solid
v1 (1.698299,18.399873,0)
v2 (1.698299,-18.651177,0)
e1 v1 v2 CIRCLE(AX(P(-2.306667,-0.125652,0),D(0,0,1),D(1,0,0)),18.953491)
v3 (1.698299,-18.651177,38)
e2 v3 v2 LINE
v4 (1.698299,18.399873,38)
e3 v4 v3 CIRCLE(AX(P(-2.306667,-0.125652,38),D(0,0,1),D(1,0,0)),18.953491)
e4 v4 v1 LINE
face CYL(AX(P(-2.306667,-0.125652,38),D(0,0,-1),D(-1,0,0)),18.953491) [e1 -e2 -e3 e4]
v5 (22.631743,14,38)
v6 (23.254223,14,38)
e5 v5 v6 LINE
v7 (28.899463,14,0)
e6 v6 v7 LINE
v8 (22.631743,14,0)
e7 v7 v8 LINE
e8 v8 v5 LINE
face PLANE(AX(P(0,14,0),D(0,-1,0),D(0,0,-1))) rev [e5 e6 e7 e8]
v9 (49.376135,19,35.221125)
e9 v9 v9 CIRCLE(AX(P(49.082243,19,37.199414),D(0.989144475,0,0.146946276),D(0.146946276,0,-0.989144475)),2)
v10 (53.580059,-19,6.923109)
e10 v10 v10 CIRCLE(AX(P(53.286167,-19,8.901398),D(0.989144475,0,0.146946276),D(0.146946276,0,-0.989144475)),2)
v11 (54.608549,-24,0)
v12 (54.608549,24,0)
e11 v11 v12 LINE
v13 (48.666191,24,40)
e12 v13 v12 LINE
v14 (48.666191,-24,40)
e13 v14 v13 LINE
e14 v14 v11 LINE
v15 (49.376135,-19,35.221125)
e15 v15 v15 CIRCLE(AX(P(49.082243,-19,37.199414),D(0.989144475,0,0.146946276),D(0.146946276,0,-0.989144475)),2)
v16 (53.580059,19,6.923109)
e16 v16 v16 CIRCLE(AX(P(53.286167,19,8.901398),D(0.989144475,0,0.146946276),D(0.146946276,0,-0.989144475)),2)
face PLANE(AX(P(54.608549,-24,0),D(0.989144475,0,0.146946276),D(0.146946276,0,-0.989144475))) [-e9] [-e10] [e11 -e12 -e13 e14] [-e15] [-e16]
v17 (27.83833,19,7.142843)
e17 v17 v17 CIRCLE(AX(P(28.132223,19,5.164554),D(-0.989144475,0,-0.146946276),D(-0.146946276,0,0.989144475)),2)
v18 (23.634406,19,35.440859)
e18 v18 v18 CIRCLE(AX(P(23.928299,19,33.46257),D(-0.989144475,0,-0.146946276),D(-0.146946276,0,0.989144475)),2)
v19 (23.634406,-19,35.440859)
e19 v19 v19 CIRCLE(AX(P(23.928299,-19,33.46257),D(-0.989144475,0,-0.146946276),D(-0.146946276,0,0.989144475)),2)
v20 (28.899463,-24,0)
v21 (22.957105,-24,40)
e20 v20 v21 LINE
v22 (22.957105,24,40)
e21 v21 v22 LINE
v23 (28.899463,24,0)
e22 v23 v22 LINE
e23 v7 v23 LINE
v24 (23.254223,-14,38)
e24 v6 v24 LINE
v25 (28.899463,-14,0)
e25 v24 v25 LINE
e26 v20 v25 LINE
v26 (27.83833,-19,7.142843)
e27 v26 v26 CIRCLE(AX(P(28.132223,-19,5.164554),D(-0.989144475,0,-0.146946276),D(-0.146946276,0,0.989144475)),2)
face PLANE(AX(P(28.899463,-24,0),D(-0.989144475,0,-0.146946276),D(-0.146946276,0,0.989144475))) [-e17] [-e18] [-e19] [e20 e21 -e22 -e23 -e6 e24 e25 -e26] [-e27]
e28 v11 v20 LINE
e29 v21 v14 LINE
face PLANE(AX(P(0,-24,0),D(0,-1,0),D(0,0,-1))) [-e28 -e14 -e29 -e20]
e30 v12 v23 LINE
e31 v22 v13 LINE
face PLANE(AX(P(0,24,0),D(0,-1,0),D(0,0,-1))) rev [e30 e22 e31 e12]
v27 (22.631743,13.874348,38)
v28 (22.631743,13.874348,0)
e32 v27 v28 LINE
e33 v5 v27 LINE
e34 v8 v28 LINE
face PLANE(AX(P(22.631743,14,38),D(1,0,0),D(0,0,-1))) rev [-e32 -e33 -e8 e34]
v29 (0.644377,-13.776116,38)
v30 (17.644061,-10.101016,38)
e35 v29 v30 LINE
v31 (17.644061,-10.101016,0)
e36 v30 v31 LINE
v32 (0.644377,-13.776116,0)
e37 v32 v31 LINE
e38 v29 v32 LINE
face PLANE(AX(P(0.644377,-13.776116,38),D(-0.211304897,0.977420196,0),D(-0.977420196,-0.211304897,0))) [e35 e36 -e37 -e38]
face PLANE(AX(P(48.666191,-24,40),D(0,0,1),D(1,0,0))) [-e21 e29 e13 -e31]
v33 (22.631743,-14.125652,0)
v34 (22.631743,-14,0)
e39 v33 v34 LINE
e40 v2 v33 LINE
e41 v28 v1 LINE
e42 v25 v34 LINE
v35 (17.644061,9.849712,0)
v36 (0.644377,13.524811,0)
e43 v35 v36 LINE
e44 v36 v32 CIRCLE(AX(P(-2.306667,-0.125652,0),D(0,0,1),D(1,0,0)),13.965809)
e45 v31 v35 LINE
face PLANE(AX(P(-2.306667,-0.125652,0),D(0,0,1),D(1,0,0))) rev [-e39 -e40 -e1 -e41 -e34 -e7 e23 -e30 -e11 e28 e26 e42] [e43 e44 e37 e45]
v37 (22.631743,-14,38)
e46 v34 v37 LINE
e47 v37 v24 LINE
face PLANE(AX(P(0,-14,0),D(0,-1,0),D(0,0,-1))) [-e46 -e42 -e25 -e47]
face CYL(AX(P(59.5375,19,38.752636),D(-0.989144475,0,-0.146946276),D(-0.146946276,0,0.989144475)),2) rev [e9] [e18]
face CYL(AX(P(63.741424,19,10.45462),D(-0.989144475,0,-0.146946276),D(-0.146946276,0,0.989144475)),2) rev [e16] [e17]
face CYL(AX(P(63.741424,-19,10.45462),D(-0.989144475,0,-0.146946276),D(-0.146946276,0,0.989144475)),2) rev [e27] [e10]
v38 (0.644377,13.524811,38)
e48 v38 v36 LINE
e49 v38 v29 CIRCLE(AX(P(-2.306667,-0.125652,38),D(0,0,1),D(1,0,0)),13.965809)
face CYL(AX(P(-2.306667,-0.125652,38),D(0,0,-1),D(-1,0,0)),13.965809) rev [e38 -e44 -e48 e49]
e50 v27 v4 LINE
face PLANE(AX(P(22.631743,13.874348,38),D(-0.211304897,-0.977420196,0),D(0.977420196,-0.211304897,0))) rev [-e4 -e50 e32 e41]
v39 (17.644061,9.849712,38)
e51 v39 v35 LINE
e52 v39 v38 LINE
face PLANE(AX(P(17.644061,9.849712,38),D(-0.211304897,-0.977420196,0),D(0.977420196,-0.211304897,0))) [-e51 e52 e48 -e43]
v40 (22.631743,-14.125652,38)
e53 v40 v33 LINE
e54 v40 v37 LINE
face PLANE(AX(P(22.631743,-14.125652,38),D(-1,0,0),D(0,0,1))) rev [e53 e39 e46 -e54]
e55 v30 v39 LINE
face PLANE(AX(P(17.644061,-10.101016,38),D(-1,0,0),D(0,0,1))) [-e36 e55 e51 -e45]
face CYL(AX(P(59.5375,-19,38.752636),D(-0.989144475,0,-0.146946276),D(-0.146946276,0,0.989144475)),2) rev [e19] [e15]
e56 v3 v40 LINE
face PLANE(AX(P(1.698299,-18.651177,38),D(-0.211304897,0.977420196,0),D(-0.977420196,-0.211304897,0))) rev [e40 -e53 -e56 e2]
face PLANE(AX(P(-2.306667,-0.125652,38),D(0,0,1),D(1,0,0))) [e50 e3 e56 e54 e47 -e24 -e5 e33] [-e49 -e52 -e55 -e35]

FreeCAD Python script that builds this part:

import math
import FreeCAD as App
import Part
import Sketcher

V = App.Vector
Q = App.Units.Quantity


def add_polygon(sketch, points):
    """Adds a closed chain of lines whose ends are joined by coincident constraints."""
    first, n = sketch.GeometryCount, len(points)
    for a, b in zip(points, points[1:] + points[:1]):
        sketch.addGeometry(Part.LineSegment(App.Vector(*a, 0), App.Vector(*b, 0)), False)
    for i in range(n):
        sketch.addConstraint(Sketcher.Constraint("Coincident", first + i, 2, first + (i + 1) % n, 1))

doc = App.newDocument("Part")
body = doc.addObject("PartDesign::Body", "Body")

sketch1 = body.newObject("Sketcher::SketchObject", "Sketch")
sketch1.AttachmentSupport = (doc.getObject("XY_Plane"), [""])
sketch1.MapMode = "FlatFace"
sketch1.addGeometry(Part.LineSegment(V(22.6, -14.1, 0), V(22.6, 13.9, 0)), False)
sketch1.addGeometry(Part.LineSegment(V(22.6, 13.9, 0), V(1.7, 18.4, 0)), False)
sketch1.addGeometry(Part.ArcOfCircle(Part.Circle(V(-2.3, -0.1, 0), V(0, 0, 1), 19), math.radians(77.8), math.radians(90)), False)
sketch1.addGeometry(Part.ArcOfCircle(Part.Circle(V(-2.3, -0.1, 0), V(0, 0, 1), 19), math.radians(90), math.radians(270)), False)
sketch1.addGeometry(Part.ArcOfCircle(Part.Circle(V(-2.3, -0.1, 0), V(0, 0, 1), 19), math.radians(-90), math.radians(-77.8)), False)
sketch1.addGeometry(Part.LineSegment(V(1.7, -18.7, 0), V(22.6, -14.1, 0)), False)
sketch1.addGeometry(Part.LineSegment(V(17.6, 9.8, 0), V(17.6, -10.1, 0)), False)
sketch1.addGeometry(Part.LineSegment(V(17.6, -10.1, 0), V(0.6, -13.8, 0)), False)
sketch1.addGeometry(Part.ArcOfCircle(Part.Circle(V(-2.3, -0.1, 0), V(0, 0, 1), 14), math.radians(-90), math.radians(-77.8)), False)
sketch1.addGeometry(Part.ArcOfCircle(Part.Circle(V(-2.3, -0.1, 0), V(0, 0, 1), 14), math.radians(90), math.radians(270)), False)
sketch1.addGeometry(Part.ArcOfCircle(Part.Circle(V(-2.3, -0.1, 0), V(0, 0, 1), 14), math.radians(77.8), math.radians(90)), False)
sketch1.addGeometry(Part.LineSegment(V(0.6, 13.5, 0), V(17.6, 9.8, 0)), False)
sketch1.addConstraint(Sketcher.Constraint("Coincident", 0, 2, 1, 1))
sketch1.addConstraint(Sketcher.Constraint("Tangent", 1, 2, 2, 1))
sketch1.addConstraint(Sketcher.Constraint("Tangent", 2, 2, 3, 1))
sketch1.addConstraint(Sketcher.Constraint("Tangent", 3, 2, 4, 1))
sketch1.addConstraint(Sketcher.Constraint("Tangent", 4, 2, 5, 1))
sketch1.addConstraint(Sketcher.Constraint("Coincident", 5, 2, 0, 1))
sketch1.addConstraint(Sketcher.Constraint("Coincident", 6, 2, 7, 1))
sketch1.addConstraint(Sketcher.Constraint("Tangent", 7, 2, 8, 2))
sketch1.addConstraint(Sketcher.Constraint("Tangent", 8, 1, 9, 2))
sketch1.addConstraint(Sketcher.Constraint("Tangent", 9, 1, 10, 2))
sketch1.addConstraint(Sketcher.Constraint("Tangent", 10, 1, 11, 1))
sketch1.addConstraint(Sketcher.Constraint("Coincident", 11, 2, 6, 1))
sketch1.addConstraint(Sketcher.Constraint("Vertical", 0))
sketch1.addConstraint(Sketcher.Constraint("Vertical", 6))
sketch1.addConstraint(Sketcher.Constraint("Coincident", 8, 3, 2, 3))
sketch1.addConstraint(Sketcher.Constraint("Equal", 2, 3))
sketch1.addConstraint(Sketcher.Constraint("Equal", 3, 4))
sketch1.addConstraint(Sketcher.Constraint("Equal", 8, 9))
sketch1.addConstraint(Sketcher.Constraint("Equal", 9, 10))
sketch1.addConstraint(Sketcher.Constraint("Parallel", 5, 7))
sketch1.addConstraint(Sketcher.Constraint("Parallel", 1, 11))
sketch1.addConstraint(Sketcher.Constraint("Vertical", 10, 3, 2, 2))
sketch1.addConstraint(Sketcher.Constraint("Vertical", 2, 2, 3, 2))
sketch1.addConstraint(Sketcher.Constraint("Vertical", 1, 2, 4, 2))
sketch1.addConstraint(Sketcher.Constraint("Vertical", 3, 2, 8, 1))
sketch1.addConstraint(Sketcher.Constraint("Vertical", 8, 1, 9, 1))
sketch1.addConstraint(Sketcher.Constraint("DistanceY", 0, 1, 0, 2, Q("28 mm")))
sketch1.addConstraint(Sketcher.Constraint("Radius", 2, Q("18.953491 mm")))
sketch1.addConstraint(Sketcher.Constraint("Radius", 8, Q("13.965809 mm")))
sketch1.addConstraint(Sketcher.Constraint("Distance", 7, Q("17.392401 mm")))
sketch1.addConstraint(Sketcher.Constraint("DistanceY", 6, 2, 6, 1, Q("19.950728 mm")))
sketch1.addConstraint(Sketcher.Constraint("DistanceX", -1, 1, 1, 2, Q("1.698299 mm")))
sketch1.addConstraint(Sketcher.Constraint("DistanceY", -1, 1, 2, 2, Q("18.827839 mm")))
pad1 = body.newObject("PartDesign::Pad", "Pad")
pad1.Profile = sketch1
pad1.Length = 38

sketch2 = body.newObject("Sketcher::SketchObject", "Sketch001")
sketch2.AttachmentSupport = (doc.getObject("XZ_Plane"), [""])
sketch2.MapMode = "FlatFace"
add_polygon(sketch2, [(23, 0), (23, 38), (43, 38), (48, 0)])
sketch2.addConstraint(Sketcher.Constraint("Vertical", 0))
sketch2.addConstraint(Sketcher.Constraint("Horizontal", 1))
sketch2.addConstraint(Sketcher.Constraint("Horizontal", 3))
sketch2.addConstraint(Sketcher.Constraint("PointOnObject", 2, 2, -1))
sketch2.addConstraint(Sketcher.Constraint("DistanceX", 1, 1, 1, 2, Q("20 mm")))
sketch2.addConstraint(Sketcher.Constraint("DistanceY", 0, 1, 0, 2, Q("38 mm")))
sketch2.addConstraint(Sketcher.Constraint("Angle", 2, Q("-81.55 deg")))
sketch2.addConstraint(Sketcher.Constraint("DistanceX", -1, 1, 0, 2, Q("22.631743 mm")))
pad2 = body.newObject("PartDesign::Pad", "Pad001")
pad2.Profile = sketch2
pad2.Length = 28
pad2.Midplane = True

sketch3 = body.newObject("Sketcher::SketchObject", "Sketch002")
sketch3.AttachmentSupport = (doc.getObject("XZ_Plane"), [""])
sketch3.MapMode = "FlatFace"
sketch3.AttachmentOffset = App.Placement(V(0, 0, -14), App.Rotation())
add_polygon(sketch3, [(29, 0), (23, 40), (49, 40), (55, 0)])
sketch3.addConstraint(Sketcher.Constraint("Horizontal", 1))
sketch3.addConstraint(Sketcher.Constraint("Horizontal", 3))
sketch3.addConstraint(Sketcher.Constraint("PointOnObject", 2, 2, -1))
sketch3.addConstraint(Sketcher.Constraint("Parallel", 0, 2))
sketch3.addConstraint(Sketcher.Constraint("DistanceY", -1, 1, 0, 2, Q("40 mm")))
sketch3.addConstraint(Sketcher.Constraint("Angle", 0, Q("98.45 deg")))
sketch3.addConstraint(Sketcher.Constraint("DistanceX", 1, 1, 1, 2, Q("25.709086 mm")))
sketch3.addConstraint(Sketcher.Constraint("DistanceX", -1, 1, 1, 2, Q("48.666191 mm")))
pad3 = body.newObject("PartDesign::Pad", "Pad002")
pad3.Profile = sketch3
pad3.Type = "TwoLengths"
pad3.Length = 10
pad3.Length2 = 38
pad3.Reversed = True

sketch4 = body.newObject("Sketcher::SketchObject", "Sketch003")
sketch4.Placement = App.Placement(V(28.275431, 0, 4.200569), App.Rotation(V(-0.146946276, 0, 0.989144475), V(0, 1, 0), V(-0.989144475, 0, -0.146946276), "ZXY"))
sketch4.addGeometry(Part.Circle(V(1, 19, 0), V(0, 0, 1), 2), False)
sketch4.addGeometry(Part.Circle(V(29.6, 19, 0), V(0, 0, 1), 2), False)
sketch4.addGeometry(Part.Circle(V(1, -19, 0), V(0, 0, 1), 2), False)
sketch4.addGeometry(Part.Circle(V(29.6, -19, 0), V(0, 0, 1), 2), False)
sketch4.addConstraint(Sketcher.Constraint("Equal", 0, 1))
sketch4.addConstraint(Sketcher.Constraint("Equal", 1, 2))
sketch4.addConstraint(Sketcher.Constraint("Equal", 2, 3))
sketch4.addConstraint(Sketcher.Constraint("Symmetric", 0, 3, 2, 3, -1))
sketch4.addConstraint(Sketcher.Constraint("Symmetric", 1, 3, 3, 3, -1))
sketch4.addConstraint(Sketcher.Constraint("Horizontal", 0, 3, 1, 3))
sketch4.addConstraint(Sketcher.Constraint("Diameter", 0, Q("4 mm")))
sketch4.addConstraint(Sketcher.Constraint("DistanceY", -1, 1, 0, 3, Q("19 mm")))
sketch4.addConstraint(Sketcher.Constraint("DistanceX", -1, 1, 0, 3, Q("0.974565 mm")))
sketch4.addConstraint(Sketcher.Constraint("DistanceX", -1, 1, 1, 3, Q("29.583142 mm")))
pocket1 = body.newObject("PartDesign::Pocket", "Pocket")
pocket1.Profile = sketch4
pocket1.Length = 36

doc.recompute()
